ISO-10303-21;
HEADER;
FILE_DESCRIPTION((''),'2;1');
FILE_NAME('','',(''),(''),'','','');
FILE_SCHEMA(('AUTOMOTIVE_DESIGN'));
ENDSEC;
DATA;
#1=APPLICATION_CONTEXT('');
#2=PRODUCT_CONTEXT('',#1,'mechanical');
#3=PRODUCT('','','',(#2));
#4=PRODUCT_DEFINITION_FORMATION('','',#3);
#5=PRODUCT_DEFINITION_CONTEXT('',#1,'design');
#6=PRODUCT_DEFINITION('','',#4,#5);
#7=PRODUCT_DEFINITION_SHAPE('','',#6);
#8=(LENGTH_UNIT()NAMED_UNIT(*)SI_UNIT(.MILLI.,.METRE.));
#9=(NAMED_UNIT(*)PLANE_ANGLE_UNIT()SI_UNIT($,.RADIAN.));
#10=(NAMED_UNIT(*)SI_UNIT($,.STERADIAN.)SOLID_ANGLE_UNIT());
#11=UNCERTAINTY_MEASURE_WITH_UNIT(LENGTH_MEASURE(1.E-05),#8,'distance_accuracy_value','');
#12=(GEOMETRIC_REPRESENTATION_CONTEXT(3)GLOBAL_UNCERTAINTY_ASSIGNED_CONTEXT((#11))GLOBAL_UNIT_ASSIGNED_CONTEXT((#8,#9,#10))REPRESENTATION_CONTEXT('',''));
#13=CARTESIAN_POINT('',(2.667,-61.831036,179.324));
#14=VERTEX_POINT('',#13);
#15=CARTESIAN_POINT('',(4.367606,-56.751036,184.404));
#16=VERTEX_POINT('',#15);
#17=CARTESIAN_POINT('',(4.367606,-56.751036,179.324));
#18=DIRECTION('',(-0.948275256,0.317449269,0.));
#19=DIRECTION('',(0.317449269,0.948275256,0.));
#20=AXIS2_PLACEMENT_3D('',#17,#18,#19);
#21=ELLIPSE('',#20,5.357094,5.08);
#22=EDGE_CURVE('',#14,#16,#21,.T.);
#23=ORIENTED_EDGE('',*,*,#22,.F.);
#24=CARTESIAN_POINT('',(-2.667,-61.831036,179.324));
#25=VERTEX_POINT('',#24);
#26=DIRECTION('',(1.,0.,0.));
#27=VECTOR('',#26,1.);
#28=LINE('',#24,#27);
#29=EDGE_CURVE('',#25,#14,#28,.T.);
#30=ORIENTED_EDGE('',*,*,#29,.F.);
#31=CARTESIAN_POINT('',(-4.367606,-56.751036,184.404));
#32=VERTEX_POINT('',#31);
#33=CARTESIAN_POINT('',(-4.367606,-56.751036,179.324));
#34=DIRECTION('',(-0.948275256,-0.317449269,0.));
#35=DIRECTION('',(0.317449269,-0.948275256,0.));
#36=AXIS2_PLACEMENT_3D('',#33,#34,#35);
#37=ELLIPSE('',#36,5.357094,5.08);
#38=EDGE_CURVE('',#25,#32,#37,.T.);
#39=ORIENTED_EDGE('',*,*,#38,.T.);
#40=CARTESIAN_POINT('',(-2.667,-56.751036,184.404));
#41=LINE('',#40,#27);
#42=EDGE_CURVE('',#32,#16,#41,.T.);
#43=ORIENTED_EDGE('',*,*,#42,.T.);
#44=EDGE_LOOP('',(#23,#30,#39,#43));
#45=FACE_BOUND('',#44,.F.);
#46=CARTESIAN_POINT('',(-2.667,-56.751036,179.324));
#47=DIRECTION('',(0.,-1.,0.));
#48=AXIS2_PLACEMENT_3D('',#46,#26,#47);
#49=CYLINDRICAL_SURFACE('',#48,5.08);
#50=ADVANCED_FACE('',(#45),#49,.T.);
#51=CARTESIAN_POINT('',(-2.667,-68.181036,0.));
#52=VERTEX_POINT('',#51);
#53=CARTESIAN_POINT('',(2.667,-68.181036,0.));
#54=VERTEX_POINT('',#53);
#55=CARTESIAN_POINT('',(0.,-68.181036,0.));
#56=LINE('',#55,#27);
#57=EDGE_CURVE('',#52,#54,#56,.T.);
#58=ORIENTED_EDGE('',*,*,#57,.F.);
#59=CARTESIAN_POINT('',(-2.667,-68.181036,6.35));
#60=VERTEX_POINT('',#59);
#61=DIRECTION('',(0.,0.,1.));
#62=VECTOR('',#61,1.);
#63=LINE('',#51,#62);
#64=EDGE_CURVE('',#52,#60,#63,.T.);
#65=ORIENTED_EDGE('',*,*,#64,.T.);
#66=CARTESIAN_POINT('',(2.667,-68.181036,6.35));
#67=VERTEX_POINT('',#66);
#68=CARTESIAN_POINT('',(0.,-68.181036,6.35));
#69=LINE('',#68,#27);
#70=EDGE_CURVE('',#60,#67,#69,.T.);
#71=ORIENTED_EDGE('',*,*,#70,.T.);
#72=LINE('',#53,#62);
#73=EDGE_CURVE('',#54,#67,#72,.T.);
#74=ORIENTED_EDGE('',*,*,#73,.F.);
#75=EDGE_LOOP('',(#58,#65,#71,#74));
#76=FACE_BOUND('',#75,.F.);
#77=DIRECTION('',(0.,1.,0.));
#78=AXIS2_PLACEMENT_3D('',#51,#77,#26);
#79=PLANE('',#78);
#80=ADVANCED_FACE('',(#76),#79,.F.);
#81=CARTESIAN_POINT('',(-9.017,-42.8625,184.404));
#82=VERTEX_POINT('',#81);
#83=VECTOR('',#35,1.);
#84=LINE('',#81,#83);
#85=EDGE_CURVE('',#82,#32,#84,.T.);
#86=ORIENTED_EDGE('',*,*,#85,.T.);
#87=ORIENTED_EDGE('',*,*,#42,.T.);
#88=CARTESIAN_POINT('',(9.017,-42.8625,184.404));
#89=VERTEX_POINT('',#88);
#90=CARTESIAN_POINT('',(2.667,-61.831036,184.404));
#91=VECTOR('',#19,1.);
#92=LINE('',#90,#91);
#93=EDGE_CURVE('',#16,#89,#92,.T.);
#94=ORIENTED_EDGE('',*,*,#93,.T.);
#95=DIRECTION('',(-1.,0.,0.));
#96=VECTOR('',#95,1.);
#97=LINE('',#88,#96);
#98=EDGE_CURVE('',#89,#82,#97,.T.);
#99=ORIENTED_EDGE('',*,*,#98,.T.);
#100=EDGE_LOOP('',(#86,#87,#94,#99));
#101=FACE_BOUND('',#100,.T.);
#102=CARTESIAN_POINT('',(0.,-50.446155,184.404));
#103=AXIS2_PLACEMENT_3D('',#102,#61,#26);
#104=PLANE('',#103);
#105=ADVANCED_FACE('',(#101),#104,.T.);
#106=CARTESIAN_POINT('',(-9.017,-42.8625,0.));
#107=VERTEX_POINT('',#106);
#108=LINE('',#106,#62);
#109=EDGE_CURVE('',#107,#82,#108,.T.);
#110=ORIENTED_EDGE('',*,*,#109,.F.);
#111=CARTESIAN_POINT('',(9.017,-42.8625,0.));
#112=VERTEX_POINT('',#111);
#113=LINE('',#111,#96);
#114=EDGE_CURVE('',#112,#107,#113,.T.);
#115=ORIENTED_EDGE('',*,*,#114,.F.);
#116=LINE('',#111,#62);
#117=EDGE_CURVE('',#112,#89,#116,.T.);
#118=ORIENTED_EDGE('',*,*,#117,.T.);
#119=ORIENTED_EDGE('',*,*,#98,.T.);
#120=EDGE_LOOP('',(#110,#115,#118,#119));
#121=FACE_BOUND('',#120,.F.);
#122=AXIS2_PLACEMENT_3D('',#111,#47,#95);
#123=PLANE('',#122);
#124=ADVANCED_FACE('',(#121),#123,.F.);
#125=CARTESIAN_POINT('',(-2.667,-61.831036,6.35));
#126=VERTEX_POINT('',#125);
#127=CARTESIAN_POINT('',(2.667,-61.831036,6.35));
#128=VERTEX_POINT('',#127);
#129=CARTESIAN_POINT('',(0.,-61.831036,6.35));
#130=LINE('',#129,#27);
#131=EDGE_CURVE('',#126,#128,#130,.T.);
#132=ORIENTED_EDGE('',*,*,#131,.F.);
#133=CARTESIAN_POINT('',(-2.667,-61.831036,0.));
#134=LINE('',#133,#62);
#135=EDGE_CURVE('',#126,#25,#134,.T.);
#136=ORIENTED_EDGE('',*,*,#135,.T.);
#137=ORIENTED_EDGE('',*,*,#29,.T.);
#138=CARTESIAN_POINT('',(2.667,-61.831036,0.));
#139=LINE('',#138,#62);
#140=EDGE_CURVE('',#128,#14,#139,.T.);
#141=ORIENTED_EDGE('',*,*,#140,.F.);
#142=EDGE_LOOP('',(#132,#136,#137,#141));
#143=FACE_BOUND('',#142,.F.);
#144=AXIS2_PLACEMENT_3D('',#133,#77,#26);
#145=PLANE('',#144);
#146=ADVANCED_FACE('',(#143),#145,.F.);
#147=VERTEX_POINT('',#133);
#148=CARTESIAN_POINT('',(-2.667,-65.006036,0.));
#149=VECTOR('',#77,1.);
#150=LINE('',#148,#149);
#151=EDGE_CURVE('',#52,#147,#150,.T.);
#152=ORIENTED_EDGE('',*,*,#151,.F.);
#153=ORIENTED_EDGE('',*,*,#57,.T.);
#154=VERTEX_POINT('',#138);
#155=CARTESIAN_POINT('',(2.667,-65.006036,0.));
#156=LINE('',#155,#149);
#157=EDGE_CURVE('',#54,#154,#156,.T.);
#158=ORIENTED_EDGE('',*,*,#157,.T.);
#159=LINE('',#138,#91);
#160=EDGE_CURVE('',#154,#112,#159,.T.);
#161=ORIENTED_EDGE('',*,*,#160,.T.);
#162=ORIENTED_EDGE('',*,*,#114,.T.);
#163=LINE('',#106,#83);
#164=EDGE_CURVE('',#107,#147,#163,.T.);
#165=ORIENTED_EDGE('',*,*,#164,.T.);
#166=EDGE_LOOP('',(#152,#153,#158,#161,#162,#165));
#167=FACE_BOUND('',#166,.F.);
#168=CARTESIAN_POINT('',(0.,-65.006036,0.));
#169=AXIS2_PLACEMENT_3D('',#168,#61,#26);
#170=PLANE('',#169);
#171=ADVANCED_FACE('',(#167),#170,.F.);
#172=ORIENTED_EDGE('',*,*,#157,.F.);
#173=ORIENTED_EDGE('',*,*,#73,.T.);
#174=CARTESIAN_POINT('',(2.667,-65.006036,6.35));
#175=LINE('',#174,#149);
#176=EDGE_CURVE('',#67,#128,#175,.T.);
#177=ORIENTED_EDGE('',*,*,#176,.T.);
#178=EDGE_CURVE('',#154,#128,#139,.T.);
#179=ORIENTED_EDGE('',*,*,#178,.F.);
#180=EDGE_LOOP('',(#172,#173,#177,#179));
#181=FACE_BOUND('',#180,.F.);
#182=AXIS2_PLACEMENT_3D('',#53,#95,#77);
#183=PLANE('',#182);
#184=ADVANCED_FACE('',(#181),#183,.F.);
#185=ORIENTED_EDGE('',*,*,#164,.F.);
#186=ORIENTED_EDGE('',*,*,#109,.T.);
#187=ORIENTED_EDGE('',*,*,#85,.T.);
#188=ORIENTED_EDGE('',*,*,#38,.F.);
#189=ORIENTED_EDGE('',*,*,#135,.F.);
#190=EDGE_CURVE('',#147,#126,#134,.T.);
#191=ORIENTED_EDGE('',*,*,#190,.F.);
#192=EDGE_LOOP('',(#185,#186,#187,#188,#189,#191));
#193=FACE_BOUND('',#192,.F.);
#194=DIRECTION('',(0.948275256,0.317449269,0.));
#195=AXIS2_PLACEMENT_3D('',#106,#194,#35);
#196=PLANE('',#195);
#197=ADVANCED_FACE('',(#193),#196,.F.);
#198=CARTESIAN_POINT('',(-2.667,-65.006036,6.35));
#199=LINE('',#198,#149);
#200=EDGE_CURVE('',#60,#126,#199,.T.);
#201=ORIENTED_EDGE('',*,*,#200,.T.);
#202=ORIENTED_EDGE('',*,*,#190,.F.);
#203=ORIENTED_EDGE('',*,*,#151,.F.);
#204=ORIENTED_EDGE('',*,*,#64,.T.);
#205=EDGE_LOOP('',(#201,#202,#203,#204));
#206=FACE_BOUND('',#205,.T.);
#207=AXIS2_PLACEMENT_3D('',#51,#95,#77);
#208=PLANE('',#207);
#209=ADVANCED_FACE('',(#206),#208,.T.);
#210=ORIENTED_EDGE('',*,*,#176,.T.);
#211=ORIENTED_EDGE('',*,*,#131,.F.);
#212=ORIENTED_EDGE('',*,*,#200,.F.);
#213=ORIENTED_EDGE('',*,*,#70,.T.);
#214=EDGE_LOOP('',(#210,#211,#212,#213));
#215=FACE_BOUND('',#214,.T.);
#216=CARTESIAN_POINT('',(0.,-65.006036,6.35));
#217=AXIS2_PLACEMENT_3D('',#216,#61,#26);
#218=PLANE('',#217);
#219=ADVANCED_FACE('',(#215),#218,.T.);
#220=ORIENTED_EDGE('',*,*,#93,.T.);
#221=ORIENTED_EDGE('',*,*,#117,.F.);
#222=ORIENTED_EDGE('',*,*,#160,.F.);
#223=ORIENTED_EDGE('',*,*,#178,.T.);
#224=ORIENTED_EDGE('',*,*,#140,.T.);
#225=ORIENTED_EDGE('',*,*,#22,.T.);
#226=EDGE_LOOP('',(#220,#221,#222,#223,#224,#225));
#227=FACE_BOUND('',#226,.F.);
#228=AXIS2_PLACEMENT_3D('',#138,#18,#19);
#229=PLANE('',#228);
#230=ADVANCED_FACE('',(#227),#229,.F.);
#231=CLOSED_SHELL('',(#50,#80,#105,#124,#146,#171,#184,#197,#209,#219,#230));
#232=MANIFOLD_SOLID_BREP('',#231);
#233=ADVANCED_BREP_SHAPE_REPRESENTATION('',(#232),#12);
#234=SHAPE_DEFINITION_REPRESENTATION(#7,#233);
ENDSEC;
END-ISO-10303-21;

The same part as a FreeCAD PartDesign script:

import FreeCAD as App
import Part
import Sketcher
from FreeCAD import Vector
Q = App.Units.Quantity


def edges_at(feature, points):
    """Names of the edges that pass closest to the given points."""
    edges = feature.Shape.Edges
    near = lambda p: min(range(len(edges)), key=lambda i: edges[i].distToShape(Part.Vertex(*p))[0])
    return sorted({f"Edge{near(p) + 1}" for p in points})

doc = App.newDocument("Part")
body = doc.addObject("PartDesign::Body", "Body")

# Sketch on XY plane
sketch1 = body.newObject("Sketcher::SketchObject", "Sketch")
sketch1.AttachmentSupport = (doc.getObject("XY_Plane"), [""])
sketch1.MapMode = "FlatFace"
sketch1.addGeometry([
    Part.LineSegment(Vector(9, -43, 0), Vector(-9, -43, 0)),
    Part.LineSegment(Vector(-9, -43, 0), Vector(-3, -62, 0)),
    Part.LineSegment(Vector(-3, -62, 0), Vector(3, -62, 0)),
    Part.LineSegment(Vector(3, -62, 0), Vector(9, -43, 0)),
], False)
sketch1.addConstraint([
    Sketcher.Constraint("Coincident", 0, 2, 1, 1),
    Sketcher.Constraint("Coincident", 1, 2, 2, 1),
    Sketcher.Constraint("Coincident", 2, 2, 3, 1),
    Sketcher.Constraint("Coincident", 3, 2, 0, 1),
    Sketcher.Constraint("Horizontal", 0),
    Sketcher.Constraint("Horizontal", 2),
    Sketcher.Constraint("Equal", 1, 3),
    Sketcher.Constraint("DistanceX", 0, 2, 0, 1, Q("0.71 in")),
    Sketcher.Constraint("DistanceX", 2, 1, 2, 2, Q("0.21 in")),
    Sketcher.Constraint("DistanceX", 0, 2, -1, 1, Q("0.355 in")),
    Sketcher.Constraint("DistanceY", 0, 2, -1, 1, Q("1.6875 in")),
    Sketcher.Constraint("Distance", 1, 20.003196),
])
pad1 = body.newObject("PartDesign::Pad", "Pad")
pad1.Profile = sketch1
pad1.Length = Q("7.26 in")

# Sketch on XY plane
sketch2 = body.newObject("Sketcher::SketchObject", "Sketch001")
sketch2.AttachmentSupport = (doc.getObject("XY_Plane"), [""])
sketch2.MapMode = "FlatFace"
sketch2.addGeometry([
    Part.LineSegment(Vector(-3, -62, 0), Vector(-3, -68, 0)),
    Part.LineSegment(Vector(-3, -68, 0), Vector(3, -68, 0)),
    Part.LineSegment(Vector(3, -68, 0), Vector(3, -62, 0)),
    Part.LineSegment(Vector(3, -62, 0), Vector(-3, -62, 0)),
], False)
sketch2.addConstraint([
    Sketcher.Constraint("Coincident", 0, 2, 1, 1),
    Sketcher.Constraint("Coincident", 1, 2, 2, 1),
    Sketcher.Constraint("Coincident", 2, 2, 3, 1),
    Sketcher.Constraint("Coincident", 3, 2, 0, 1),
    Sketcher.Constraint("Vertical", 0),
    Sketcher.Constraint("Horizontal", 1),
    Sketcher.Constraint("Vertical", 2),
    Sketcher.Constraint("Horizontal", 3),
    Sketcher.Constraint("DistanceX", 1, 1, 1, 2, Q("0.21 in")),
    Sketcher.Constraint("DistanceY", 0, 2, 0, 1, Q("0.25 in")),
    Sketcher.Constraint("DistanceX", 0, 2, -1, 1, Q("0.105 in")),
    Sketcher.Constraint("DistanceY", 0, 2, -1, 1, 68.181036),
])
pad2 = body.newObject("PartDesign::Pad", "Pad001")
pad2.Profile = sketch2
pad2.Length = Q("0.25 in")
doc.recompute()

fillet = body.newObject("PartDesign::Fillet", "Fillet")
fillet.Base = (pad2, edges_at(pad2, [(0, -61.831, 184.404)]))
fillet.Radius = Q("0.2 in")

doc.recompute()
